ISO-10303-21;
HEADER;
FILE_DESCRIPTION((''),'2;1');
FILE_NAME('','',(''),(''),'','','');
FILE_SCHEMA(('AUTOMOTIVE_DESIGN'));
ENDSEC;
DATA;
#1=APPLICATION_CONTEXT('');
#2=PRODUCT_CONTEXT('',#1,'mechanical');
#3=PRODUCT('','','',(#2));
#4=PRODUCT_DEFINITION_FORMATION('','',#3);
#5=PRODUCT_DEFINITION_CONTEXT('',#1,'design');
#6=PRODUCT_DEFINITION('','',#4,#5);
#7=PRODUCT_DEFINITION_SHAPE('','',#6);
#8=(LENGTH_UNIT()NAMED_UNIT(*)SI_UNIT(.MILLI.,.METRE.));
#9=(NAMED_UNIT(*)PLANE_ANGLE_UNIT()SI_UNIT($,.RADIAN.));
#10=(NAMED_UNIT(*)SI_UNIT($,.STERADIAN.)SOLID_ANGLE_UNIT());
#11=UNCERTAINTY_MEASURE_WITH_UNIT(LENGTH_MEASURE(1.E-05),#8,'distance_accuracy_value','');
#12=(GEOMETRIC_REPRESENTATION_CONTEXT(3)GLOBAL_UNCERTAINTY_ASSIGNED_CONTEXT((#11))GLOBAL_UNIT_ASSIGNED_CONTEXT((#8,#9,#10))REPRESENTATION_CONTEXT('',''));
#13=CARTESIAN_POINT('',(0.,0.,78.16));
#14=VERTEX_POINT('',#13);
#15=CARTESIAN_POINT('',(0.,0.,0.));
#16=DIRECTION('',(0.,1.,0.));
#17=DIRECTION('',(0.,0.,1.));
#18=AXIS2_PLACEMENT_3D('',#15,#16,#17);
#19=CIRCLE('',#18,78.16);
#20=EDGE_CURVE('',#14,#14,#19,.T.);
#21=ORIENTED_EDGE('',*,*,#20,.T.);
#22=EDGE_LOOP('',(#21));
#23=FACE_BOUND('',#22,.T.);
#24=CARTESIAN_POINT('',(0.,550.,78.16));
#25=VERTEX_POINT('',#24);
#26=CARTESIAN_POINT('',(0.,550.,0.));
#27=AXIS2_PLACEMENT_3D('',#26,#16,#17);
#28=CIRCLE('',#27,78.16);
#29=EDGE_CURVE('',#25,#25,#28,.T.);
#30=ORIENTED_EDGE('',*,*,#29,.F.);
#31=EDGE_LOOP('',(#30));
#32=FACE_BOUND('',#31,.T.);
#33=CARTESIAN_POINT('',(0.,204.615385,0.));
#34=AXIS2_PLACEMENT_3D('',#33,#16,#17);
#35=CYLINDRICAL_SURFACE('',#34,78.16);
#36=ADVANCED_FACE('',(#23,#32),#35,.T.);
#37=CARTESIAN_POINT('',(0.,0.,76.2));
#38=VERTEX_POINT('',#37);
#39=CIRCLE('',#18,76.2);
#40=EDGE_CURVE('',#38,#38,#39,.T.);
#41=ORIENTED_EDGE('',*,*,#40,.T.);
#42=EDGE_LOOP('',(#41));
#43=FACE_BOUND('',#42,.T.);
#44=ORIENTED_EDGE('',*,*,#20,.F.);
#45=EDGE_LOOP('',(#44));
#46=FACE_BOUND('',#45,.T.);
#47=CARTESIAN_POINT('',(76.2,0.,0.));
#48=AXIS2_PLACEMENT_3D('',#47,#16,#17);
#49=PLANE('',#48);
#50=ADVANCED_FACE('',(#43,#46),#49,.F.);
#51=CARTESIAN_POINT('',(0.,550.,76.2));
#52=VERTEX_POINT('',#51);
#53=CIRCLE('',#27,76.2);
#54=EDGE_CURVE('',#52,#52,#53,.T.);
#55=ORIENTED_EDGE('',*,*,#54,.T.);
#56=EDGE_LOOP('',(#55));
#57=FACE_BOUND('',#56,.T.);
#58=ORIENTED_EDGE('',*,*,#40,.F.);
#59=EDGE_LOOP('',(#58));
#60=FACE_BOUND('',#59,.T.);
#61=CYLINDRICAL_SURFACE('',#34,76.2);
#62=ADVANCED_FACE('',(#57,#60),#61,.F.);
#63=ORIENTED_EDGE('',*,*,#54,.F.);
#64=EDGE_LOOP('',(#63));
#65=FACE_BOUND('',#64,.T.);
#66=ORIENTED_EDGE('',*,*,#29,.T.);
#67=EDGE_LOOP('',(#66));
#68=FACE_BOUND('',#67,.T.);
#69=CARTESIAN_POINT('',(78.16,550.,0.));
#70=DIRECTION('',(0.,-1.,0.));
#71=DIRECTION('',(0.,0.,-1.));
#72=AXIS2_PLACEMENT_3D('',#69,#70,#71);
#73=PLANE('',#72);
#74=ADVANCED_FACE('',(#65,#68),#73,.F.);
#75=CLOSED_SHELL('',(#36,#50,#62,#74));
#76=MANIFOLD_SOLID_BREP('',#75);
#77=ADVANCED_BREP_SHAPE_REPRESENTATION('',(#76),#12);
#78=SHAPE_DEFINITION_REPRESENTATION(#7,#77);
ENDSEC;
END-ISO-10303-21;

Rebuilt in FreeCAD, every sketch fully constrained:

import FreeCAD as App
import Part
import Sketcher
Q = App.Units.Quantity


def add_polygon(sketch, points):
    """Adds a closed chain of lines whose ends are joined by coincident constraints."""
    first, n = sketch.GeometryCount, len(points)
    for a, b in zip(points, points[1:] + points[:1]):
        sketch.addGeometry(Part.LineSegment(App.Vector(*a, 0), App.Vector(*b, 0)), False)
    for i in range(n):
        sketch.addConstraint(Sketcher.Constraint("Coincident", first + i, 2, first + (i + 1) % n, 1))

doc = App.newDocument("Part")
body = doc.addObject("PartDesign::Body", "Body")

sketch1 = body.newObject("Sketcher::SketchObject", "Sketch")
sketch1.AttachmentSupport = (doc.getObject("XY_Plane"), [""])
sketch1.MapMode = "FlatFace"
add_polygon(sketch1, [(76.2, 550), (76.2, 0), (78.2, 0), (78.2, 550)])
sketch1.addConstraint([
    Sketcher.Constraint("Vertical", 0),
    Sketcher.Constraint("Horizontal", 1),
    Sketcher.Constraint("Vertical", 2),
    Sketcher.Constraint("Horizontal", 3),
    Sketcher.Constraint("PointOnObject", 0, 2, -1),
    Sketcher.Constraint("DistanceY", 0, 2, 0, 1, Q("550 mm")),
    Sketcher.Constraint("DistanceX", 1, 1, 1, 2, Q("1.96 mm")),
    Sketcher.Constraint("DistanceX", -1, 1, 0, 2, Q("76.2 mm")),
])
revolution = body.newObject("PartDesign::Revolution", "Revolution")
revolution.Profile = sketch1
revolution.ReferenceAxis = (sketch1, ["V_Axis"])
revolution.Angle = 360

doc.recompute()
